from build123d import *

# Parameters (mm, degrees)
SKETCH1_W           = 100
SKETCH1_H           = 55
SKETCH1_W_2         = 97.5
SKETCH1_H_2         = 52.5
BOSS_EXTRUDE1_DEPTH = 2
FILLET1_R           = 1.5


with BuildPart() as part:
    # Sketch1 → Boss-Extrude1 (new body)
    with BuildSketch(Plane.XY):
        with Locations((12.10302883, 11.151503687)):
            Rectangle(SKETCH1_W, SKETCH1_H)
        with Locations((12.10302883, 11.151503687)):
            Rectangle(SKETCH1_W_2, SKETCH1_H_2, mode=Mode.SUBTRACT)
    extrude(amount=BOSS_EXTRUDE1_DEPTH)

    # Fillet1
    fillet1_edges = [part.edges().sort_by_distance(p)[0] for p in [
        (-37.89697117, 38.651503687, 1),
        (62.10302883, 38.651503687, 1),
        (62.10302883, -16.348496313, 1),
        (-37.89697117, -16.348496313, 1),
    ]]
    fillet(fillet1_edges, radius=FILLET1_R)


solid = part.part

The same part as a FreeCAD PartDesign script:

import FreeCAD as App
import Part
import Sketcher
Q = App.Units.Quantity


def edges_at(feature, points):
    """Names of the edges that pass closest to the given points."""
    edges = feature.Shape.Edges
    near = lambda p: min(range(len(edges)), key=lambda i: edges[i].distToShape(Part.Vertex(*p))[0])
    return sorted({f"Edge{near(p) + 1}" for p in points})


def add_polygon(sketch, points):
    """Adds a closed chain of lines whose ends are joined by coincident constraints."""
    first, n = sketch.GeometryCount, len(points)
    for a, b in zip(points, points[1:] + points[:1]):
        sketch.addGeometry(Part.LineSegment(App.Vector(*a, 0), App.Vector(*b, 0)), False)
    for i in range(n):
        sketch.addConstraint(Sketcher.Constraint("Coincident", first + i, 2, first + (i + 1) % n, 1))

doc = App.newDocument("Part")
body = doc.addObject("PartDesign::Body", "Body")

sketch1 = body.newObject("Sketcher::SketchObject", "Sketch")
sketch1.AttachmentSupport = (doc.getObject("XY_Plane"), [""])
sketch1.MapMode = "FlatFace"
add_polygon(sketch1, [(-38, 39), (-38, -16), (62, -16), (62, 39)])
add_polygon(sketch1, [(61, -15), (-37, -15), (-37, 37), (61, 37)])
sketch1.addConstraint(Sketcher.Constraint("Vertical", 0))
sketch1.addConstraint(Sketcher.Constraint("Horizontal", 1))
sketch1.addConstraint(Sketcher.Constraint("Vertical", 2))
sketch1.addConstraint(Sketcher.Constraint("Horizontal", 3))
sketch1.addConstraint(Sketcher.Constraint("Horizontal", 4))
sketch1.addConstraint(Sketcher.Constraint("Vertical", 5))
sketch1.addConstraint(Sketcher.Constraint("Horizontal", 6))
sketch1.addConstraint(Sketcher.Constraint("Vertical", 7))
sketch1.addConstraint(Sketcher.Constraint("DistanceX", 1, 1, 1, 2, Q("100 mm")))
sketch1.addConstraint(Sketcher.Constraint("DistanceY", 0, 2, 0, 1, Q("55 mm")))
sketch1.addConstraint(Sketcher.Constraint("DistanceX", 4, 2, 4, 1, Q("97.5 mm")))
sketch1.addConstraint(Sketcher.Constraint("DistanceY", 5, 1, 5, 2, Q("52.5 mm")))
sketch1.addConstraint(Sketcher.Constraint("DistanceX", 0, 2, 4, 2, Q("1.25 mm")))
sketch1.addConstraint(Sketcher.Constraint("DistanceY", 0, 2, 4, 2, Q("1.25 mm")))
sketch1.addConstraint(Sketcher.Constraint("DistanceX", 0, 2, -1, 1, Q("37.896971 mm")))
sketch1.addConstraint(Sketcher.Constraint("DistanceY", 0, 2, -1, 1, Q("16.348496 mm")))
pad1 = body.newObject("PartDesign::Pad", "Pad")
pad1.Profile = sketch1
pad1.Length = 2
doc.recompute()

fillet = body.newObject("PartDesign::Fillet", "Fillet")
fillet.Base = (pad1, edges_at(pad1, [
    (-37.897, 38.652, 1),
    (62.103, 38.652, 1),
    (62.103, -16.348, 1),
    (-37.897, -16.348, 1),
]))
fillet.Radius = 1.5

doc.recompute()
